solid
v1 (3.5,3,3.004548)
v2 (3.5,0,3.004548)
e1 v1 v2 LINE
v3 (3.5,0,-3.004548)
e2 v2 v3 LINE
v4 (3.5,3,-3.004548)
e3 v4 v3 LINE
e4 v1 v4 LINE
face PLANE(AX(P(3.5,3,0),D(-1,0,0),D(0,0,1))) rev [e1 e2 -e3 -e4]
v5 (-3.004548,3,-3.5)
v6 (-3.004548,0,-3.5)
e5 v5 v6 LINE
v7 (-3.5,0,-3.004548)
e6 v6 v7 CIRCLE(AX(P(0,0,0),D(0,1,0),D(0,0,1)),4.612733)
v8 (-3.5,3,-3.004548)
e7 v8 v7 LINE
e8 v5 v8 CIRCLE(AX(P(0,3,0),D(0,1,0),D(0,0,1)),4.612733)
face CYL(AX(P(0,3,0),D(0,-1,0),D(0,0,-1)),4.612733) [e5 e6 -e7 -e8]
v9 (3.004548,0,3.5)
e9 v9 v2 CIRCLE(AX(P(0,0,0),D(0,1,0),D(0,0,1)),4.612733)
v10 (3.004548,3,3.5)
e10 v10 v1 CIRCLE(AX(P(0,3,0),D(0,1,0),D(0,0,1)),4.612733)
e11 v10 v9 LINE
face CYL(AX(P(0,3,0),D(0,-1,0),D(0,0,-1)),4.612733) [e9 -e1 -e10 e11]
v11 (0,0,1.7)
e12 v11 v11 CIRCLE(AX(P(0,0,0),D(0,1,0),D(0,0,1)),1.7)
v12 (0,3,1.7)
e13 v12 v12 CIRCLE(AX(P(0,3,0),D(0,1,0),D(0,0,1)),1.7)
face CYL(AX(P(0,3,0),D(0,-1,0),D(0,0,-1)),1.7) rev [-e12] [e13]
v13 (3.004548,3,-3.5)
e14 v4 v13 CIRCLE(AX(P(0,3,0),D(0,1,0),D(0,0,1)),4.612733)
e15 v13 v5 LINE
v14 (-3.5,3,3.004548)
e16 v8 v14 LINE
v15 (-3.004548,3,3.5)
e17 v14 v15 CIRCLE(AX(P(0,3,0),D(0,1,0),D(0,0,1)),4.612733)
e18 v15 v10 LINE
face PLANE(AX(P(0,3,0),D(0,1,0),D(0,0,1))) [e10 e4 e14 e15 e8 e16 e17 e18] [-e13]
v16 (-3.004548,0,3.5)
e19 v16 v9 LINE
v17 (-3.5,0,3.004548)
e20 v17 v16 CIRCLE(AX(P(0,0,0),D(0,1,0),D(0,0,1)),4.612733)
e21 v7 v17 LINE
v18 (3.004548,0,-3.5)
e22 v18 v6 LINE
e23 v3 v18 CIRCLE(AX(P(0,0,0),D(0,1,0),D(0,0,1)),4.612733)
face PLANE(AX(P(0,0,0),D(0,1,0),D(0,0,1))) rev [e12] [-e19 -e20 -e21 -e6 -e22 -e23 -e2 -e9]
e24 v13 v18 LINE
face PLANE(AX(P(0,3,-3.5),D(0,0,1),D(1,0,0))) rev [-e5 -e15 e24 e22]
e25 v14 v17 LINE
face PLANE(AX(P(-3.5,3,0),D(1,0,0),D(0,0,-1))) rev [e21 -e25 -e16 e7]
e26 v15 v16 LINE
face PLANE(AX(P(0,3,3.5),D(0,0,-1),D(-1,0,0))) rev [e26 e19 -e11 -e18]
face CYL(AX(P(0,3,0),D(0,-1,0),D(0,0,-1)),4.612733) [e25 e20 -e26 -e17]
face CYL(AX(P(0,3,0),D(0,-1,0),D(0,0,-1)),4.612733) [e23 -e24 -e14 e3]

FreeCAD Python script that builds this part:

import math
import FreeCAD as App
import Part
import Sketcher
from FreeCAD import Vector

doc = App.newDocument("Part")
body = doc.addObject("PartDesign::Body", "Body")

sketch1 = doc.addObject("Sketcher::SketchObject", "Sketch")
body.addObject(sketch1)
sketch1.AttachmentSupport = (doc.XZ_Plane, [""])
sketch1.MapMode = "FlatFace"
sketch1.addGeometry(Part.LineSegment(Vector(3.5, 3, 0), Vector(3.5, -3, 0)), False)
sketch1.addGeometry(Part.ArcOfCircle(Part.Circle(Vector(0, 0, 0), Vector(0, 0, 1), 4.6), math.radians(-49.36), math.radians(-40.64)), False)
sketch1.addGeometry(Part.LineSegment(Vector(3, -3.5, 0), Vector(-3, -3.5, 0)), False)
sketch1.addGeometry(Part.ArcOfCircle(Part.Circle(Vector(0, 0, 0), Vector(0, 0, 1), 4.6), math.radians(-139.36), math.radians(-130.64)), False)
sketch1.addGeometry(Part.LineSegment(Vector(-3.5, -3, 0), Vector(-3.5, 3, 0)), False)
sketch1.addGeometry(Part.ArcOfCircle(Part.Circle(Vector(0, 0, 0), Vector(0, 0, 1), 4.6), math.radians(130.64), math.radians(139.36)), False)
sketch1.addGeometry(Part.LineSegment(Vector(-3, 3.5, 0), Vector(3, 3.5, 0)), False)
sketch1.addGeometry(Part.ArcOfCircle(Part.Circle(Vector(0, 0, 0), Vector(0, 0, 1), 4.6), math.radians(40.64), math.radians(49.36)), False)
sketch1.addGeometry(Part.Circle(Vector(0, 0, 0), Vector(0, 0, 1), 1.7), False)
sketch1.addConstraint(Sketcher.Constraint("Coincident", 0, 2, 1, 2))
sketch1.addConstraint(Sketcher.Constraint("Coincident", 1, 1, 2, 1))
sketch1.addConstraint(Sketcher.Constraint("Coincident", 2, 2, 3, 2))
sketch1.addConstraint(Sketcher.Constraint("Coincident", 3, 1, 4, 1))
sketch1.addConstraint(Sketcher.Constraint("Coincident", 4, 2, 5, 2))
sketch1.addConstraint(Sketcher.Constraint("Coincident", 5, 1, 6, 1))
sketch1.addConstraint(Sketcher.Constraint("Coincident", 6, 2, 7, 2))
sketch1.addConstraint(Sketcher.Constraint("Coincident", 7, 1, 0, 1))
sketch1.addConstraint(Sketcher.Constraint("Vertical", 0))
sketch1.addConstraint(Sketcher.Constraint("Horizontal", 2))
sketch1.addConstraint(Sketcher.Constraint("Vertical", 4))
sketch1.addConstraint(Sketcher.Constraint("Horizontal", 6))
sketch1.addConstraint(Sketcher.Constraint("Coincident", 1, 3, -1, 1))
sketch1.addConstraint(Sketcher.Constraint("Coincident", 3, 3, -1, 1))
sketch1.addConstraint(Sketcher.Constraint("Coincident", 5, 3, -1, 1))
sketch1.addConstraint(Sketcher.Constraint("Coincident", 7, 3, -1, 1))
sketch1.addConstraint(Sketcher.Constraint("Coincident", 8, 3, -1, 1))
sketch1.addConstraint(Sketcher.Constraint("Equal", 1, 3))
sketch1.addConstraint(Sketcher.Constraint("Equal", 3, 5))
sketch1.addConstraint(Sketcher.Constraint("Equal", 5, 7))
sketch1.addConstraint(Sketcher.Constraint("Horizontal", 0, 2, 3, 1))
sketch1.addConstraint(Sketcher.Constraint("Vertical", 2, 2, 5, 1))
sketch1.addConstraint(Sketcher.Constraint("Equal", 6, 0))
sketch1.addConstraint(Sketcher.Constraint("Diameter", 8, 3.4))
sketch1.addConstraint(Sketcher.Constraint("DistanceX", -1, 1, 0, 2, 3.5))
sketch1.addConstraint(Sketcher.Constraint("Radius", 1, 4.612733))
pad1 = doc.addObject("PartDesign::Pad", "Pad")
body.addObject(pad1)
pad1.Profile = sketch1
pad1.Length = 3
pad1.Reversed = True

doc.recompute()
